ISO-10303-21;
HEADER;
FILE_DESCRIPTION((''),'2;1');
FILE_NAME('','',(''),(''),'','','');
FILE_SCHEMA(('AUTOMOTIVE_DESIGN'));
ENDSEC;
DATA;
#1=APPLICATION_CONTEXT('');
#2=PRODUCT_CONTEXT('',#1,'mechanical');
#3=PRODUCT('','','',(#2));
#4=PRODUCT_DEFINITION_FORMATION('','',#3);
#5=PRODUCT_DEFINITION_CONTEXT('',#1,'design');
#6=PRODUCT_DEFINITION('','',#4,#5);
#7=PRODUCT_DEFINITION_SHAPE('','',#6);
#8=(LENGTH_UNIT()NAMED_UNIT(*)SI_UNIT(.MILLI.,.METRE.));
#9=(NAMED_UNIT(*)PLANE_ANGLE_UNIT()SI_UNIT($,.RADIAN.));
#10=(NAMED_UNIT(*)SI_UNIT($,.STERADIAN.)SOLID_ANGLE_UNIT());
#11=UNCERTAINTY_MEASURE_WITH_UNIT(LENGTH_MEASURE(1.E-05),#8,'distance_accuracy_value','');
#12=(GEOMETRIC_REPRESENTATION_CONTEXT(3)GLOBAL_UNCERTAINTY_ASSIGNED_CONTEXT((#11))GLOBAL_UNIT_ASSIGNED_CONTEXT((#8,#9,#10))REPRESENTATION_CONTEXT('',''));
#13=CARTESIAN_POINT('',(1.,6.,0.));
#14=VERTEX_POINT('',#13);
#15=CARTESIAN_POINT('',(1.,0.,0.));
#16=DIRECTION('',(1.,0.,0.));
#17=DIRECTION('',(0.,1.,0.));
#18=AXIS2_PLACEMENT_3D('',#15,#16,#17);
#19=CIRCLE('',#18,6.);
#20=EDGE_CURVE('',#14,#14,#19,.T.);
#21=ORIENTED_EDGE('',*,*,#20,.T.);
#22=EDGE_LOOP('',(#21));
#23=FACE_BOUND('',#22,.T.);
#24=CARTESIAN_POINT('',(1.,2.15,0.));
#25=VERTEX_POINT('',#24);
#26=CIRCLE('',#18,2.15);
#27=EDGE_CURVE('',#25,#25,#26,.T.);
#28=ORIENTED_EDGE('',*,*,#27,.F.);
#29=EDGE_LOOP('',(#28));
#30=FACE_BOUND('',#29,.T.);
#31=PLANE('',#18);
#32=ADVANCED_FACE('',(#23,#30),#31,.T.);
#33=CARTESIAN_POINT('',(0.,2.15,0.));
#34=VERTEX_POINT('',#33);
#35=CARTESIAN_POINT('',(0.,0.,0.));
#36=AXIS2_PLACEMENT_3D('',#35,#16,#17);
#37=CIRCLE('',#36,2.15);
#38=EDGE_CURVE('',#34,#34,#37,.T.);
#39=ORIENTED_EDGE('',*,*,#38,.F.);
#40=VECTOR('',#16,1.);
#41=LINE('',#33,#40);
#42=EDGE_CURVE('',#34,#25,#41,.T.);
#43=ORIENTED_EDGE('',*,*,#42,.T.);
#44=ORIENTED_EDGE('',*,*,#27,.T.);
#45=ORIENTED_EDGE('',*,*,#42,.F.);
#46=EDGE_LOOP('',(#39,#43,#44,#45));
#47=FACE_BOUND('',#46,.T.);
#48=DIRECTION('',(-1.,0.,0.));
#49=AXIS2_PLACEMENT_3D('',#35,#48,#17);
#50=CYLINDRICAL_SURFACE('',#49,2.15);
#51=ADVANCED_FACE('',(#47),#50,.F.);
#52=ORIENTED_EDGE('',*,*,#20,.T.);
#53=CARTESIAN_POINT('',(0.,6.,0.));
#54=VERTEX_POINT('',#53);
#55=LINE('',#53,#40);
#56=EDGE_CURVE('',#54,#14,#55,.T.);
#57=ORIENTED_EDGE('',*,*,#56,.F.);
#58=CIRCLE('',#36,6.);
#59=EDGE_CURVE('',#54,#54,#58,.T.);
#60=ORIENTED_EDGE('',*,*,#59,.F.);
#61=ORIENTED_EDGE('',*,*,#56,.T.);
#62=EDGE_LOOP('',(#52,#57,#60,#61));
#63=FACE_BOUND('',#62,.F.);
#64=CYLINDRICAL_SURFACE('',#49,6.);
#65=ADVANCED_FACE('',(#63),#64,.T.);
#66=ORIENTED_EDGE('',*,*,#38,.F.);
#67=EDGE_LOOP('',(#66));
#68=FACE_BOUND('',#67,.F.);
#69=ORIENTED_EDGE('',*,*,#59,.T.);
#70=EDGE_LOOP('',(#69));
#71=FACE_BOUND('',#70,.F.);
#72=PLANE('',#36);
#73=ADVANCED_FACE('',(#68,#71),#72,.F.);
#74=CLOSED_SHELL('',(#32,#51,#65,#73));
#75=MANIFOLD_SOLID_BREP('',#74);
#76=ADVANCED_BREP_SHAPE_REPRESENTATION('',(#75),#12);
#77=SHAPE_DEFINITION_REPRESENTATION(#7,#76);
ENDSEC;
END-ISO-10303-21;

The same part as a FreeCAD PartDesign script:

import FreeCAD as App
import Part
import Sketcher

V = App.Vector

doc = App.newDocument("Part")
params = doc.addObject("Spreadsheet::Sheet", "Params")
for row, (alias, value) in enumerate([
    ("sketch1_diameter", "12 mm"),
    ("sketch1_diameter2", "4.3 mm"),
    ("pad1_length", "1 mm"),
], start=1):
    params.set(f"A{row}", alias)
    params.set(f"B{row}", "=" + value)
    params.setAlias(f"B{row}", alias)

body = doc.addObject("PartDesign::Body", "Body")

# Sketch on YZ plane
sketch1 = body.newObject("Sketcher::SketchObject", "Sketch")
sketch1.AttachmentSupport = (doc.getObject("YZ_Plane"), [""])
sketch1.MapMode = "FlatFace"
sketch1.addGeometry([
    Part.Circle(V(0, 0, 0), V(0, 0, 1), 6),
    Part.Circle(V(0, 0, 0), V(0, 0, 1), 2.15),
], False)
sketch1.addConstraint([
    Sketcher.Constraint("Coincident", 0, 3, -1, 1),
    Sketcher.Constraint("Coincident", 1, 3, -1, 1),
    Sketcher.Constraint("Diameter", 0, 12.0),
    Sketcher.Constraint("Diameter", 1, 4.3),
])
sketch1.setExpression("Constraints[2]", "Params.sketch1_diameter")
sketch1.setExpression("Constraints[3]", "Params.sketch1_diameter2")
pad1 = body.newObject("PartDesign::Pad", "Pad")
pad1.Profile = sketch1
pad1.setExpression("Length", "Params.pad1_length")

doc.recompute()
